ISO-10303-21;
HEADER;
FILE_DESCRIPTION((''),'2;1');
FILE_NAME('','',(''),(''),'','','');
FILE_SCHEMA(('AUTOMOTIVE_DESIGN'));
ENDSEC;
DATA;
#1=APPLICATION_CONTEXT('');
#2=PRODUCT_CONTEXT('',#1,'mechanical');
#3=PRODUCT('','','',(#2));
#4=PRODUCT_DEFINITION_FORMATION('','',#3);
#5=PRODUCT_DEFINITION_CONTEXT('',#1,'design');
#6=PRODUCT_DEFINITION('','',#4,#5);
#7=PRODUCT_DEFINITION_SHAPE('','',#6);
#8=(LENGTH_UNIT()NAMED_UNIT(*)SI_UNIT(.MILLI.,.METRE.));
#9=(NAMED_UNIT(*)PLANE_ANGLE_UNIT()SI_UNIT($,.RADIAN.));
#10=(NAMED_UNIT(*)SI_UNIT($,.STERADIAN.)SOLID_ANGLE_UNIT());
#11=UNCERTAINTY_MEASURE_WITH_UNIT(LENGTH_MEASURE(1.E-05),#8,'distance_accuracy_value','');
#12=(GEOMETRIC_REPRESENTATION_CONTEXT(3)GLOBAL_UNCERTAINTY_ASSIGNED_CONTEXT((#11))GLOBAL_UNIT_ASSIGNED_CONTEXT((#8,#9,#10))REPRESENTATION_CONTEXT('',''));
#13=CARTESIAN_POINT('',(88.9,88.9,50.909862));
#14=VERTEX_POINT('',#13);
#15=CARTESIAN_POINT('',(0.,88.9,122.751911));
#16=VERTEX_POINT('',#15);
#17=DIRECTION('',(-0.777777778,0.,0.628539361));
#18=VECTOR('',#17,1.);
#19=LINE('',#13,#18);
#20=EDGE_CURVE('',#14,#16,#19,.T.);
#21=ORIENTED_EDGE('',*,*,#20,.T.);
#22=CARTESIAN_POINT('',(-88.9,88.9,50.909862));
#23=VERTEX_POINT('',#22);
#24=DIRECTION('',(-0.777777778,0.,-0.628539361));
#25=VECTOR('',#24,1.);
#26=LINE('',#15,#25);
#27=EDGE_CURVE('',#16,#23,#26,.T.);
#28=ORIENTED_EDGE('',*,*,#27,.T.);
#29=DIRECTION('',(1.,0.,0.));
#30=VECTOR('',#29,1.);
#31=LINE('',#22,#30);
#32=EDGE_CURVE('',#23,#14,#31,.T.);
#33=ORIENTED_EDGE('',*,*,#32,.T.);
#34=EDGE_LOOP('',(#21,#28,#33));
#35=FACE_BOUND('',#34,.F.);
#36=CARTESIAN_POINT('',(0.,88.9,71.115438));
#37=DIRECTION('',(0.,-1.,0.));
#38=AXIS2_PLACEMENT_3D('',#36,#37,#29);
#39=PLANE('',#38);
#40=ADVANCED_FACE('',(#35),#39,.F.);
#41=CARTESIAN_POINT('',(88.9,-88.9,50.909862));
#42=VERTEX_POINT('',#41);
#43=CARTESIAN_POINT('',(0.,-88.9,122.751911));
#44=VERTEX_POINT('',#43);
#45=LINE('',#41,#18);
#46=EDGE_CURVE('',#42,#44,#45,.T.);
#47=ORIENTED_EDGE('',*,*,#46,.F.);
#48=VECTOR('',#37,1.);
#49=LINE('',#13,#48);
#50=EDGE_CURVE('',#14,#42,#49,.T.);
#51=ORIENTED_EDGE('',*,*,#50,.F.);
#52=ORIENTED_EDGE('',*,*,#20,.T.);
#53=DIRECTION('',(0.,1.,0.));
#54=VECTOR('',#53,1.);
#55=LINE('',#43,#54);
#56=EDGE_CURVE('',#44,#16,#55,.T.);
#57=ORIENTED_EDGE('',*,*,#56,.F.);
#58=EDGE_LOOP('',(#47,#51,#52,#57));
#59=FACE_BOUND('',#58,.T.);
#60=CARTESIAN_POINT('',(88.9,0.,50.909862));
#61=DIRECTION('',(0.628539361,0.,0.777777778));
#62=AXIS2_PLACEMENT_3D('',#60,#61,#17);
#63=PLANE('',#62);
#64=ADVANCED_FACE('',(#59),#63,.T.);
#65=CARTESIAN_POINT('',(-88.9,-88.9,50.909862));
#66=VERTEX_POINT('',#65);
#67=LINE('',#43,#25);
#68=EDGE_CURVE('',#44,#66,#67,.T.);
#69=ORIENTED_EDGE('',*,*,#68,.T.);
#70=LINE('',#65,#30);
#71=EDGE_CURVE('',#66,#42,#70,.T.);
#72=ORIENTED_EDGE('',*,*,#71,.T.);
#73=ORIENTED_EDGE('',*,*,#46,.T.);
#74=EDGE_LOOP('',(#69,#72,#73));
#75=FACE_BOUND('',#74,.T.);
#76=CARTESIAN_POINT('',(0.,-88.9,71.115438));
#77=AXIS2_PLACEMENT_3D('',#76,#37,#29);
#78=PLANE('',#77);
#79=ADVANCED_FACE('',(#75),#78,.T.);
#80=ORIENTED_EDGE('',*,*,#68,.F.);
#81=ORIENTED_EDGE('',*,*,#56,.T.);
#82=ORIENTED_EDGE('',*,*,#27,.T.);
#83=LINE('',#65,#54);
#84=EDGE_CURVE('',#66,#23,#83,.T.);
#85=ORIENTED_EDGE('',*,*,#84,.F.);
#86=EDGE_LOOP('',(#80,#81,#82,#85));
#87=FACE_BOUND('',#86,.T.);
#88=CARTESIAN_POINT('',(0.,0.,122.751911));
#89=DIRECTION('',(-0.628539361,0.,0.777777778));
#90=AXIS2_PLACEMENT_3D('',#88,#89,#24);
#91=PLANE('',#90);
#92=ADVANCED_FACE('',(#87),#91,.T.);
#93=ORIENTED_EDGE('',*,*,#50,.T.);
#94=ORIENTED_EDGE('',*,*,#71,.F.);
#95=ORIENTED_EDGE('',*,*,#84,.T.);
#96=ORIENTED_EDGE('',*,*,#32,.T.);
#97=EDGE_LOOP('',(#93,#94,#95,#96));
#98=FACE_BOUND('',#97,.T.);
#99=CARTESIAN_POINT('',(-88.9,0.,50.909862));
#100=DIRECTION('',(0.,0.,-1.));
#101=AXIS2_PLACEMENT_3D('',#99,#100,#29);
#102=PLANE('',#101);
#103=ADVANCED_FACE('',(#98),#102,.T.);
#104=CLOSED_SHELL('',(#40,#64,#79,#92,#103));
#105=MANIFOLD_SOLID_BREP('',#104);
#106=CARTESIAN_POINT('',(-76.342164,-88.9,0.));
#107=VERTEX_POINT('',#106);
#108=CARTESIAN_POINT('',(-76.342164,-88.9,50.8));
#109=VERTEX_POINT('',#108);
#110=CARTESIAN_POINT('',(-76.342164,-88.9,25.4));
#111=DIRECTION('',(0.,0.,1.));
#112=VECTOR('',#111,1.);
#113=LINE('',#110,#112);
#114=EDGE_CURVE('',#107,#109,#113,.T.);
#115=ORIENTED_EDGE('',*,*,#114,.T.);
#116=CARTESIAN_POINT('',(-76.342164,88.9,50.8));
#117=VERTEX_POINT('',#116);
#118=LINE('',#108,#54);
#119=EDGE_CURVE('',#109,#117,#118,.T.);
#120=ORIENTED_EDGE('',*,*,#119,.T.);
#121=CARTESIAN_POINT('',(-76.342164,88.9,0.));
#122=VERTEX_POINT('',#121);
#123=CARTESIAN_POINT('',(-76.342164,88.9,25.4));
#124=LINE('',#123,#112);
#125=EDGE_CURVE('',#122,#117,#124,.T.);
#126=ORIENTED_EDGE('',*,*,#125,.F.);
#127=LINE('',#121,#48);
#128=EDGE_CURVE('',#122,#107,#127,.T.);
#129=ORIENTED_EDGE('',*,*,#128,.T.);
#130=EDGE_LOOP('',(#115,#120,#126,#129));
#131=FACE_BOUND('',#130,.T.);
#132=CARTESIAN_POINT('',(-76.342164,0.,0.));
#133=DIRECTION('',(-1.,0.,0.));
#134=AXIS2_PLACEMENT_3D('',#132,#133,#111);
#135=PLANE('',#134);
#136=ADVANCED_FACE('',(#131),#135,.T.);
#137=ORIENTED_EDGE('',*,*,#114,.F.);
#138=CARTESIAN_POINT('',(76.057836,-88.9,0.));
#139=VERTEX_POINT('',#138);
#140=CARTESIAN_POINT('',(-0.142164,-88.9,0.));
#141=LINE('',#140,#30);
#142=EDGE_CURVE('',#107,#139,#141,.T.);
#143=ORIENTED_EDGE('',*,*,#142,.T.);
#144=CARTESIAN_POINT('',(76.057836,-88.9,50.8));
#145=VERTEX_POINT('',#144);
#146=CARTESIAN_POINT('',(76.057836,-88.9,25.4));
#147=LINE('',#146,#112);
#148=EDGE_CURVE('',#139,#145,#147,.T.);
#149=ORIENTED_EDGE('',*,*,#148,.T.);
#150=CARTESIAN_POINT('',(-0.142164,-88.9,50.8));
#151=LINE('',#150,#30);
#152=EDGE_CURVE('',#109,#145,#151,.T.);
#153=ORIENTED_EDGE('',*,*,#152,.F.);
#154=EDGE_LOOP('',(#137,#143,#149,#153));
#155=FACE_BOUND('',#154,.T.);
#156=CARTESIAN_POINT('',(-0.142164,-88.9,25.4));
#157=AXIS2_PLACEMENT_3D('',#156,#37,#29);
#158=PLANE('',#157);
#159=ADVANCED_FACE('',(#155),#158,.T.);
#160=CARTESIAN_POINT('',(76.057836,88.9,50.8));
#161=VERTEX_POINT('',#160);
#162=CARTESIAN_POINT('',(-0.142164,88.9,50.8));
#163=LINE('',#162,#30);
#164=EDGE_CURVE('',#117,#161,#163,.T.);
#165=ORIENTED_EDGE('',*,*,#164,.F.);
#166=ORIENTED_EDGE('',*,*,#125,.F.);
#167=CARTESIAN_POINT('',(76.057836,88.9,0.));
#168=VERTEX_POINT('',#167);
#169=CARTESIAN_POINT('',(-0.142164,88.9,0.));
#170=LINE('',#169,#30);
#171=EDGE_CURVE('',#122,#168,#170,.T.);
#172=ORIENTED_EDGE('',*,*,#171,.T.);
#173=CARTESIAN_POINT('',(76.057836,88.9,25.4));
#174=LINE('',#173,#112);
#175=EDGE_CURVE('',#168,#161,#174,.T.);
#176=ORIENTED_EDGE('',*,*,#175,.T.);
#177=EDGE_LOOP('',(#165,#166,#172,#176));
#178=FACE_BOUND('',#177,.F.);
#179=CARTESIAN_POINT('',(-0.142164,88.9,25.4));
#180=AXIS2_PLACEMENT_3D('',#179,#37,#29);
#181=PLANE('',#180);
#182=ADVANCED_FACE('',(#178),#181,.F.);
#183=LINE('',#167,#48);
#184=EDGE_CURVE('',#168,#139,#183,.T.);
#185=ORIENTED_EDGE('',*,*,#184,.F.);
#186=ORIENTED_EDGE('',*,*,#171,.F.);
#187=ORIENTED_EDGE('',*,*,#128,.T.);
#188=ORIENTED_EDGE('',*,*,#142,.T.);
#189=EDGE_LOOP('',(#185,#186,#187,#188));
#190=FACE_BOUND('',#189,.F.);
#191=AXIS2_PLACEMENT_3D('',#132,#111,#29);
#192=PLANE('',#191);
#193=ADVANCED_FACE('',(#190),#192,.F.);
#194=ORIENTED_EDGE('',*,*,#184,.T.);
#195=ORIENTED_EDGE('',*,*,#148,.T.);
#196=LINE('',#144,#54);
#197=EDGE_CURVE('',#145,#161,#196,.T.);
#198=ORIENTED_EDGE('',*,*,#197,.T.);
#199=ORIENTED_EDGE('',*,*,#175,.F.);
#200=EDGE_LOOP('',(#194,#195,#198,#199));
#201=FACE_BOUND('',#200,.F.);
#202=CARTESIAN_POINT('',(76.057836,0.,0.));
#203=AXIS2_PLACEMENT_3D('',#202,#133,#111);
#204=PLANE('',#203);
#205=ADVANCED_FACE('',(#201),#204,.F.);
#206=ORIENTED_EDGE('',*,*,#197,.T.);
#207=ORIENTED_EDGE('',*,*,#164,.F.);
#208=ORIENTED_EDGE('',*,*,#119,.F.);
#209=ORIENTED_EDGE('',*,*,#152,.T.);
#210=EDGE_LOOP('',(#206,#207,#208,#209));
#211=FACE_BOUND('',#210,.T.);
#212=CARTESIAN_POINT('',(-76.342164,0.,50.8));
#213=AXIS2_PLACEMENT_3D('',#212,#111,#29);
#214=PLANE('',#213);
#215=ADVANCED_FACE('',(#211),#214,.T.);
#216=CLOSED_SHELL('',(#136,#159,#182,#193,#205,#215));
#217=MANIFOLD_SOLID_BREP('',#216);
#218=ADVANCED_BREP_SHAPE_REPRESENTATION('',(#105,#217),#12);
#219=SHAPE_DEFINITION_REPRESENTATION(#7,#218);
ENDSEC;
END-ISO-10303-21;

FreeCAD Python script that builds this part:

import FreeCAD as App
import Part
import Sketcher
Q = App.Units.Quantity

doc = App.newDocument("Part")
body = doc.addObject("PartDesign::Body", "Body")
body.AllowCompound = True

sketch1 = body.newObject("Sketcher::SketchObject", "Sketch")
sketch1.AttachmentSupport = (doc.getObject("XZ_Plane"), [""])
sketch1.MapMode = "FlatFace"
sketch1.addGeometry([
    Part.LineSegment(App.Vector(-76, 51, 0), App.Vector(-76, 0, 0)),
    Part.LineSegment(App.Vector(-76, 0, 0), App.Vector(76, 0, 0)),
    Part.LineSegment(App.Vector(76, 0, 0), App.Vector(76, 51, 0)),
    Part.LineSegment(App.Vector(76, 51, 0), App.Vector(-76, 51, 0)),
], False)
sketch1.addConstraint([
    Sketcher.Constraint("Coincident", 0, 2, 1, 1),
    Sketcher.Constraint("Coincident", 1, 2, 2, 1),
    Sketcher.Constraint("Coincident", 2, 2, 3, 1),
    Sketcher.Constraint("Coincident", 3, 2, 0, 1),
    Sketcher.Constraint("Vertical", 0),
    Sketcher.Constraint("Horizontal", 1),
    Sketcher.Constraint("Vertical", 2),
    Sketcher.Constraint("Horizontal", 3),
    Sketcher.Constraint("PointOnObject", 0, 2, -1),
    Sketcher.Constraint("DistanceX", 1, 1, 1, 2, Q("6 in")),
    Sketcher.Constraint("DistanceY", 0, 2, 0, 1, Q("2 in")),
    Sketcher.Constraint("DistanceX", 0, 2, -1, 1, Q("76.342164 mm")),
])
pad1 = body.newObject("PartDesign::Pad", "Pad")
pad1.Profile = sketch1
pad1.Length = Q("6 in")
pad1.Midplane = True

sketch2 = body.newObject("Sketcher::SketchObject", "Sketch001")
sketch2.AttachmentSupport = (doc.getObject("XZ_Plane"), [""])
sketch2.MapMode = "FlatFace"
sketch2.addGeometry([
    Part.LineSegment(App.Vector(-76, 51, 0), App.Vector(-76, 0, 0)),
    Part.LineSegment(App.Vector(-76, 0, 0), App.Vector(76, 0, 0)),
    Part.LineSegment(App.Vector(76, 0, 0), App.Vector(76, 51, 0)),
    Part.LineSegment(App.Vector(76, 51, 0), App.Vector(-76, 51, 0)),
    Part.LineSegment(App.Vector(-89, 51, 0), App.Vector(89, 51, 0)),
    Part.LineSegment(App.Vector(89, 51, 0), App.Vector(0, 123, 0)),
    Part.LineSegment(App.Vector(0, 123, 0), App.Vector(-89, 51, 0)),
], False)
sketch2.addConstraint([
    Sketcher.Constraint("Coincident", 0, 2, 1, 1),
    Sketcher.Constraint("Coincident", 1, 2, 2, 1),
    Sketcher.Constraint("Coincident", 2, 2, 3, 1),
    Sketcher.Constraint("Coincident", 3, 2, 0, 1),
    Sketcher.Constraint("Coincident", 4, 2, 5, 1),
    Sketcher.Constraint("Coincident", 5, 2, 6, 1),
    Sketcher.Constraint("Coincident", 6, 2, 4, 1),
    Sketcher.Constraint("Vertical", 0),
    Sketcher.Constraint("Horizontal", 1),
    Sketcher.Constraint("Vertical", 2),
    Sketcher.Constraint("Horizontal", 3),
    Sketcher.Constraint("Horizontal", 4),
    Sketcher.Constraint("PointOnObject", 0, 2, -1),
    Sketcher.Constraint("PointOnObject", 5, 2, -2),
    Sketcher.Constraint("Equal", 5, 6),
    Sketcher.Constraint("DistanceX", 1, 1, 1, 2, Q("6 in")),
    Sketcher.Constraint("DistanceX", 4, 1, 4, 2, Q("7 in")),
    Sketcher.Constraint("DistanceY", 0, 2, 0, 1, Q("2 in")),
    Sketcher.Constraint("Distance", 5, Q("4.5 in")),
    Sketcher.Constraint("DistanceY", -1, 1, 4, 2, Q("50.909862 mm")),
    Sketcher.Constraint("DistanceX", 0, 2, -1, 1, Q("76.342164 mm")),
])
pad2 = body.newObject("PartDesign::Pad", "Pad001")
pad2.Profile = sketch2
pad2.Length = Q("7 in")
pad2.Midplane = True

doc.recompute()
